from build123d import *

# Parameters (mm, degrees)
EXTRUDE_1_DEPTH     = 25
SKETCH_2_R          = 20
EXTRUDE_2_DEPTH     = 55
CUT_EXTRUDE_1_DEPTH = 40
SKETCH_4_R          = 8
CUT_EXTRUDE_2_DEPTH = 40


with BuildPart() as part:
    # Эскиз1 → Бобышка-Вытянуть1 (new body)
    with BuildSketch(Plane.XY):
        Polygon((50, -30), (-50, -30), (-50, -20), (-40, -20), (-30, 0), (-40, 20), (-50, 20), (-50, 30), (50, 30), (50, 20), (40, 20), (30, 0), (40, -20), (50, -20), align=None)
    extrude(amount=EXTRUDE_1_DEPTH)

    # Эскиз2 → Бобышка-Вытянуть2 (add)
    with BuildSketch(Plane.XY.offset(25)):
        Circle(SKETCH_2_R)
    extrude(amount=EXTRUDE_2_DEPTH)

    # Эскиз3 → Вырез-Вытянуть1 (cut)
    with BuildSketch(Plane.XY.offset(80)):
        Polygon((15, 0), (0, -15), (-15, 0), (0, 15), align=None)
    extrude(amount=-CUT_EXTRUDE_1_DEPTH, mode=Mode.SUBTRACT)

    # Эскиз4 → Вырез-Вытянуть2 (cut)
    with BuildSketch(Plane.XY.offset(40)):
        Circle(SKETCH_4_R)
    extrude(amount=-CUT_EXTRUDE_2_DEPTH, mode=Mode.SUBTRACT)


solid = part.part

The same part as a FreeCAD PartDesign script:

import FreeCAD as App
import Part
import Sketcher

V = App.Vector


def add_polygon(sketch, points):
    """Adds a closed chain of lines whose ends are joined by coincident constraints."""
    first, n = sketch.GeometryCount, len(points)
    for a, b in zip(points, points[1:] + points[:1]):
        sketch.addGeometry(Part.LineSegment(App.Vector(*a, 0), App.Vector(*b, 0)), False)
    for i in range(n):
        sketch.addConstraint(Sketcher.Constraint("Coincident", first + i, 2, first + (i + 1) % n, 1))

doc = App.newDocument("Part")
body = doc.addObject("PartDesign::Body", "Body")

# Sketch on XY plane
sketch1 = body.newObject("Sketcher::SketchObject", "Sketch")
sketch1.AttachmentSupport = (doc.getObject("XY_Plane"), [""])
sketch1.MapMode = "FlatFace"
add_polygon(sketch1, [(-50, -30), (50, -30), (50, -20), (40, -20), (30, 0), (40, 20), (50, 20), (50, 30), (-50, 30), (-50, 20), (-40, 20), (-30, 0), (-40, -20), (-50, -20)])  # lines 0-13
sketch1.addConstraint([
    Sketcher.Constraint("Horizontal", 0),
    Sketcher.Constraint("Vertical", 1),
    Sketcher.Constraint("Horizontal", 2),
    Sketcher.Constraint("Horizontal", 5),
    Sketcher.Constraint("Vertical", 6),
    Sketcher.Constraint("Horizontal", 7),
    Sketcher.Constraint("Vertical", 8),
    Sketcher.Constraint("Horizontal", 9),
    Sketcher.Constraint("Horizontal", 12),
    Sketcher.Constraint("Vertical", 13),
    Sketcher.Constraint("Symmetric", 0, 2, 7, 2, -1, 1),
    Sketcher.Constraint("Symmetric", 2, 2, 9, 2, -1, 1),
    Sketcher.Constraint("Symmetric", 3, 2, 10, 2, -1, 1),
    Sketcher.Constraint("Symmetric", 4, 2, 11, 2, -1, 1),
    Sketcher.Constraint("Symmetric", 5, 2, 8, 2, -2),
    Sketcher.Constraint("PointOnObject", 3, 2, -1),
    Sketcher.Constraint("Vertical", 2, 2, 4, 2),
    Sketcher.Constraint("Vertical", 8, 2, 12, 2),
    Sketcher.Constraint("Equal", 12, 1),
    Sketcher.Constraint("DistanceX", 0, 1, 0, 2, 100.0),
    Sketcher.Constraint("DistanceX", 2, 2, 2, 1, 10.0),
    Sketcher.Constraint("DistanceY", 0, 2, -1, 1, 30.0),
    Sketcher.Constraint("DistanceX", -1, 1, 3, 2, 30.0),
])
pad1 = body.newObject("PartDesign::Pad", "Pad")
pad1.Profile = sketch1
pad1.Length = 25

# Sketch on XY plane
sketch2 = body.newObject("Sketcher::SketchObject", "Sketch001")
sketch2.AttachmentSupport = (doc.getObject("XY_Plane"), [""])
sketch2.MapMode = "FlatFace"
sketch2.AttachmentOffset = App.Placement(V(0, 0, 25), App.Rotation())
sketch2.addGeometry(Part.Circle(V(0, 0, 0), V(0, 0, 1), 20), False)
sketch2.addConstraint([
    Sketcher.Constraint("Coincident", 0, 3, -1, 1),
    Sketcher.Constraint("Diameter", 0, 40.0),
])
pad2 = body.newObject("PartDesign::Pad", "Pad001")
pad2.Profile = sketch2
pad2.Length = 55

# Sketch on XY plane
sketch3 = body.newObject("Sketcher::SketchObject", "Sketch002")
sketch3.AttachmentSupport = (doc.getObject("XY_Plane"), [""])
sketch3.MapMode = "FlatFace"
sketch3.AttachmentOffset = App.Placement(V(0, 0, 80), App.Rotation())
add_polygon(sketch3, [(0, -15), (15, 0), (0, 15), (-15, 0)])  # lines 0-3
sketch3.addConstraint([
    Sketcher.Constraint("Symmetric", 0, 2, 2, 2, -1, 1),
    Sketcher.Constraint("Symmetric", 1, 2, 3, 2, -1, 1),
    Sketcher.Constraint("PointOnObject", 0, 2, -1),
    Sketcher.Constraint("PointOnObject", 1, 2, -2),
    Sketcher.Constraint("Perpendicular", 0, 1),
    Sketcher.Constraint("DistanceX", -1, 1, 0, 2, 15.0),
])
pocket1 = body.newObject("PartDesign::Pocket", "Pocket")
pocket1.Profile = sketch3
pocket1.Length = 40

# Sketch on XY plane
sketch4 = body.newObject("Sketcher::SketchObject", "Sketch003")
sketch4.AttachmentSupport = (doc.getObject("XY_Plane"), [""])
sketch4.MapMode = "FlatFace"
sketch4.AttachmentOffset = App.Placement(V(0, 0, 40), App.Rotation())
sketch4.addGeometry(Part.Circle(V(0, 0, 0), V(0, 0, 1), 8), False)
sketch4.addConstraint([
    Sketcher.Constraint("Coincident", 0, 3, -1, 1),
    Sketcher.Constraint("Diameter", 0, 16.0),
])
pocket2 = body.newObject("PartDesign::Pocket", "Pocket001")
pocket2.Profile = sketch4
pocket2.Length = 40

doc.recompute()
